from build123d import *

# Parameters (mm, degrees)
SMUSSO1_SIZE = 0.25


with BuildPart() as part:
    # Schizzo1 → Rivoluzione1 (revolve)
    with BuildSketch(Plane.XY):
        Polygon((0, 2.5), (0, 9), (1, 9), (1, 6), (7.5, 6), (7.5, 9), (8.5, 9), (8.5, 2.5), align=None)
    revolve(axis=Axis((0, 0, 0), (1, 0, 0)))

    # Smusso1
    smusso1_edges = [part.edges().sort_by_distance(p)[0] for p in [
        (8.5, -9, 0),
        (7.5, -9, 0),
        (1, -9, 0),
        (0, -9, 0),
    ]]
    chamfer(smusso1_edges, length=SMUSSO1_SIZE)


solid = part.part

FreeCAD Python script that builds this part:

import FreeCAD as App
import Part
import Sketcher
from FreeCAD import Vector
Q = App.Units.Quantity


def edges_at(feature, points):
    """Names of the edges that pass closest to the given points."""
    edges = feature.Shape.Edges
    near = lambda p: min(range(len(edges)), key=lambda i: edges[i].distToShape(Part.Vertex(*p))[0])
    return sorted({f"Edge{near(p) + 1}" for p in points})

doc = App.newDocument("Part")
body = doc.addObject("PartDesign::Body", "Body")

# Sketch on XY plane
sketch1 = body.newObject("Sketcher::SketchObject", "Sketch")
sketch1.AttachmentSupport = (doc.getObject("XY_Plane"), [""])
sketch1.MapMode = "FlatFace"
sketch1.addGeometry([
    Part.LineSegment(Vector(0, 9, 0), Vector(0, 2.5, 0)),  # 0
    Part.LineSegment(Vector(0, 2.5, 0), Vector(8.5, 2.5, 0)),  # 1
    Part.LineSegment(Vector(8.5, 2.5, 0), Vector(8.5, 9, 0)),  # 2
    Part.LineSegment(Vector(8.5, 9, 0), Vector(7.5, 9, 0)),  # 3
    Part.LineSegment(Vector(7.5, 9, 0), Vector(7.5, 6, 0)),  # 4
    Part.LineSegment(Vector(7.5, 6, 0), Vector(1, 6, 0)),  # 5
    Part.LineSegment(Vector(1, 6, 0), Vector(1, 9, 0)),  # 6
    Part.LineSegment(Vector(1, 9, 0), Vector(0, 9, 0)),  # 7
], False)
sketch1.addConstraint([
    Sketcher.Constraint("Coincident", 0, 2, 1, 1),
    Sketcher.Constraint("Coincident", 1, 2, 2, 1),
    Sketcher.Constraint("Coincident", 2, 2, 3, 1),
    Sketcher.Constraint("Coincident", 3, 2, 4, 1),
    Sketcher.Constraint("Coincident", 4, 2, 5, 1),
    Sketcher.Constraint("Coincident", 5, 2, 6, 1),
    Sketcher.Constraint("Coincident", 6, 2, 7, 1),
    Sketcher.Constraint("Coincident", 7, 2, 0, 1),
    Sketcher.Constraint("Vertical", 0),
    Sketcher.Constraint("Horizontal", 1),
    Sketcher.Constraint("Vertical", 2),
    Sketcher.Constraint("Horizontal", 3),
    Sketcher.Constraint("Vertical", 4),
    Sketcher.Constraint("Horizontal", 5),
    Sketcher.Constraint("Vertical", 6),
    Sketcher.Constraint("Horizontal", 7),
    Sketcher.Constraint("PointOnObject", 0, 2, -2),
    Sketcher.Constraint("Horizontal", 3, 2, 6, 2),
    Sketcher.Constraint("Equal", 3, 7),
    Sketcher.Constraint("Equal", 5, 0),
    Sketcher.Constraint("DistanceX", 3, 2, 3, 1, Q("1 mm")),
    Sketcher.Constraint("DistanceY", 4, 2, 4, 1, Q("3 mm")),
    Sketcher.Constraint("DistanceX", 1, 1, 1, 2, Q("8.5 mm")),
    Sketcher.Constraint("DistanceY", -1, 1, 2, 2, Q("9 mm")),
])
revolution = body.newObject("PartDesign::Revolution", "Revolution")
revolution.Profile = sketch1
revolution.ReferenceAxis = (sketch1, ["H_Axis"])
revolution.Angle = 360
doc.recompute()

chamfer = body.newObject("PartDesign::Chamfer", "Chamfer")
chamfer.Base = (revolution, edges_at(revolution, [
    (8.5, -9, 0),
    (7.5, -9, 0),
    (1, -9, 0),
    (0, -9, 0),
]))
chamfer.Size = 0.25

doc.recompute()
